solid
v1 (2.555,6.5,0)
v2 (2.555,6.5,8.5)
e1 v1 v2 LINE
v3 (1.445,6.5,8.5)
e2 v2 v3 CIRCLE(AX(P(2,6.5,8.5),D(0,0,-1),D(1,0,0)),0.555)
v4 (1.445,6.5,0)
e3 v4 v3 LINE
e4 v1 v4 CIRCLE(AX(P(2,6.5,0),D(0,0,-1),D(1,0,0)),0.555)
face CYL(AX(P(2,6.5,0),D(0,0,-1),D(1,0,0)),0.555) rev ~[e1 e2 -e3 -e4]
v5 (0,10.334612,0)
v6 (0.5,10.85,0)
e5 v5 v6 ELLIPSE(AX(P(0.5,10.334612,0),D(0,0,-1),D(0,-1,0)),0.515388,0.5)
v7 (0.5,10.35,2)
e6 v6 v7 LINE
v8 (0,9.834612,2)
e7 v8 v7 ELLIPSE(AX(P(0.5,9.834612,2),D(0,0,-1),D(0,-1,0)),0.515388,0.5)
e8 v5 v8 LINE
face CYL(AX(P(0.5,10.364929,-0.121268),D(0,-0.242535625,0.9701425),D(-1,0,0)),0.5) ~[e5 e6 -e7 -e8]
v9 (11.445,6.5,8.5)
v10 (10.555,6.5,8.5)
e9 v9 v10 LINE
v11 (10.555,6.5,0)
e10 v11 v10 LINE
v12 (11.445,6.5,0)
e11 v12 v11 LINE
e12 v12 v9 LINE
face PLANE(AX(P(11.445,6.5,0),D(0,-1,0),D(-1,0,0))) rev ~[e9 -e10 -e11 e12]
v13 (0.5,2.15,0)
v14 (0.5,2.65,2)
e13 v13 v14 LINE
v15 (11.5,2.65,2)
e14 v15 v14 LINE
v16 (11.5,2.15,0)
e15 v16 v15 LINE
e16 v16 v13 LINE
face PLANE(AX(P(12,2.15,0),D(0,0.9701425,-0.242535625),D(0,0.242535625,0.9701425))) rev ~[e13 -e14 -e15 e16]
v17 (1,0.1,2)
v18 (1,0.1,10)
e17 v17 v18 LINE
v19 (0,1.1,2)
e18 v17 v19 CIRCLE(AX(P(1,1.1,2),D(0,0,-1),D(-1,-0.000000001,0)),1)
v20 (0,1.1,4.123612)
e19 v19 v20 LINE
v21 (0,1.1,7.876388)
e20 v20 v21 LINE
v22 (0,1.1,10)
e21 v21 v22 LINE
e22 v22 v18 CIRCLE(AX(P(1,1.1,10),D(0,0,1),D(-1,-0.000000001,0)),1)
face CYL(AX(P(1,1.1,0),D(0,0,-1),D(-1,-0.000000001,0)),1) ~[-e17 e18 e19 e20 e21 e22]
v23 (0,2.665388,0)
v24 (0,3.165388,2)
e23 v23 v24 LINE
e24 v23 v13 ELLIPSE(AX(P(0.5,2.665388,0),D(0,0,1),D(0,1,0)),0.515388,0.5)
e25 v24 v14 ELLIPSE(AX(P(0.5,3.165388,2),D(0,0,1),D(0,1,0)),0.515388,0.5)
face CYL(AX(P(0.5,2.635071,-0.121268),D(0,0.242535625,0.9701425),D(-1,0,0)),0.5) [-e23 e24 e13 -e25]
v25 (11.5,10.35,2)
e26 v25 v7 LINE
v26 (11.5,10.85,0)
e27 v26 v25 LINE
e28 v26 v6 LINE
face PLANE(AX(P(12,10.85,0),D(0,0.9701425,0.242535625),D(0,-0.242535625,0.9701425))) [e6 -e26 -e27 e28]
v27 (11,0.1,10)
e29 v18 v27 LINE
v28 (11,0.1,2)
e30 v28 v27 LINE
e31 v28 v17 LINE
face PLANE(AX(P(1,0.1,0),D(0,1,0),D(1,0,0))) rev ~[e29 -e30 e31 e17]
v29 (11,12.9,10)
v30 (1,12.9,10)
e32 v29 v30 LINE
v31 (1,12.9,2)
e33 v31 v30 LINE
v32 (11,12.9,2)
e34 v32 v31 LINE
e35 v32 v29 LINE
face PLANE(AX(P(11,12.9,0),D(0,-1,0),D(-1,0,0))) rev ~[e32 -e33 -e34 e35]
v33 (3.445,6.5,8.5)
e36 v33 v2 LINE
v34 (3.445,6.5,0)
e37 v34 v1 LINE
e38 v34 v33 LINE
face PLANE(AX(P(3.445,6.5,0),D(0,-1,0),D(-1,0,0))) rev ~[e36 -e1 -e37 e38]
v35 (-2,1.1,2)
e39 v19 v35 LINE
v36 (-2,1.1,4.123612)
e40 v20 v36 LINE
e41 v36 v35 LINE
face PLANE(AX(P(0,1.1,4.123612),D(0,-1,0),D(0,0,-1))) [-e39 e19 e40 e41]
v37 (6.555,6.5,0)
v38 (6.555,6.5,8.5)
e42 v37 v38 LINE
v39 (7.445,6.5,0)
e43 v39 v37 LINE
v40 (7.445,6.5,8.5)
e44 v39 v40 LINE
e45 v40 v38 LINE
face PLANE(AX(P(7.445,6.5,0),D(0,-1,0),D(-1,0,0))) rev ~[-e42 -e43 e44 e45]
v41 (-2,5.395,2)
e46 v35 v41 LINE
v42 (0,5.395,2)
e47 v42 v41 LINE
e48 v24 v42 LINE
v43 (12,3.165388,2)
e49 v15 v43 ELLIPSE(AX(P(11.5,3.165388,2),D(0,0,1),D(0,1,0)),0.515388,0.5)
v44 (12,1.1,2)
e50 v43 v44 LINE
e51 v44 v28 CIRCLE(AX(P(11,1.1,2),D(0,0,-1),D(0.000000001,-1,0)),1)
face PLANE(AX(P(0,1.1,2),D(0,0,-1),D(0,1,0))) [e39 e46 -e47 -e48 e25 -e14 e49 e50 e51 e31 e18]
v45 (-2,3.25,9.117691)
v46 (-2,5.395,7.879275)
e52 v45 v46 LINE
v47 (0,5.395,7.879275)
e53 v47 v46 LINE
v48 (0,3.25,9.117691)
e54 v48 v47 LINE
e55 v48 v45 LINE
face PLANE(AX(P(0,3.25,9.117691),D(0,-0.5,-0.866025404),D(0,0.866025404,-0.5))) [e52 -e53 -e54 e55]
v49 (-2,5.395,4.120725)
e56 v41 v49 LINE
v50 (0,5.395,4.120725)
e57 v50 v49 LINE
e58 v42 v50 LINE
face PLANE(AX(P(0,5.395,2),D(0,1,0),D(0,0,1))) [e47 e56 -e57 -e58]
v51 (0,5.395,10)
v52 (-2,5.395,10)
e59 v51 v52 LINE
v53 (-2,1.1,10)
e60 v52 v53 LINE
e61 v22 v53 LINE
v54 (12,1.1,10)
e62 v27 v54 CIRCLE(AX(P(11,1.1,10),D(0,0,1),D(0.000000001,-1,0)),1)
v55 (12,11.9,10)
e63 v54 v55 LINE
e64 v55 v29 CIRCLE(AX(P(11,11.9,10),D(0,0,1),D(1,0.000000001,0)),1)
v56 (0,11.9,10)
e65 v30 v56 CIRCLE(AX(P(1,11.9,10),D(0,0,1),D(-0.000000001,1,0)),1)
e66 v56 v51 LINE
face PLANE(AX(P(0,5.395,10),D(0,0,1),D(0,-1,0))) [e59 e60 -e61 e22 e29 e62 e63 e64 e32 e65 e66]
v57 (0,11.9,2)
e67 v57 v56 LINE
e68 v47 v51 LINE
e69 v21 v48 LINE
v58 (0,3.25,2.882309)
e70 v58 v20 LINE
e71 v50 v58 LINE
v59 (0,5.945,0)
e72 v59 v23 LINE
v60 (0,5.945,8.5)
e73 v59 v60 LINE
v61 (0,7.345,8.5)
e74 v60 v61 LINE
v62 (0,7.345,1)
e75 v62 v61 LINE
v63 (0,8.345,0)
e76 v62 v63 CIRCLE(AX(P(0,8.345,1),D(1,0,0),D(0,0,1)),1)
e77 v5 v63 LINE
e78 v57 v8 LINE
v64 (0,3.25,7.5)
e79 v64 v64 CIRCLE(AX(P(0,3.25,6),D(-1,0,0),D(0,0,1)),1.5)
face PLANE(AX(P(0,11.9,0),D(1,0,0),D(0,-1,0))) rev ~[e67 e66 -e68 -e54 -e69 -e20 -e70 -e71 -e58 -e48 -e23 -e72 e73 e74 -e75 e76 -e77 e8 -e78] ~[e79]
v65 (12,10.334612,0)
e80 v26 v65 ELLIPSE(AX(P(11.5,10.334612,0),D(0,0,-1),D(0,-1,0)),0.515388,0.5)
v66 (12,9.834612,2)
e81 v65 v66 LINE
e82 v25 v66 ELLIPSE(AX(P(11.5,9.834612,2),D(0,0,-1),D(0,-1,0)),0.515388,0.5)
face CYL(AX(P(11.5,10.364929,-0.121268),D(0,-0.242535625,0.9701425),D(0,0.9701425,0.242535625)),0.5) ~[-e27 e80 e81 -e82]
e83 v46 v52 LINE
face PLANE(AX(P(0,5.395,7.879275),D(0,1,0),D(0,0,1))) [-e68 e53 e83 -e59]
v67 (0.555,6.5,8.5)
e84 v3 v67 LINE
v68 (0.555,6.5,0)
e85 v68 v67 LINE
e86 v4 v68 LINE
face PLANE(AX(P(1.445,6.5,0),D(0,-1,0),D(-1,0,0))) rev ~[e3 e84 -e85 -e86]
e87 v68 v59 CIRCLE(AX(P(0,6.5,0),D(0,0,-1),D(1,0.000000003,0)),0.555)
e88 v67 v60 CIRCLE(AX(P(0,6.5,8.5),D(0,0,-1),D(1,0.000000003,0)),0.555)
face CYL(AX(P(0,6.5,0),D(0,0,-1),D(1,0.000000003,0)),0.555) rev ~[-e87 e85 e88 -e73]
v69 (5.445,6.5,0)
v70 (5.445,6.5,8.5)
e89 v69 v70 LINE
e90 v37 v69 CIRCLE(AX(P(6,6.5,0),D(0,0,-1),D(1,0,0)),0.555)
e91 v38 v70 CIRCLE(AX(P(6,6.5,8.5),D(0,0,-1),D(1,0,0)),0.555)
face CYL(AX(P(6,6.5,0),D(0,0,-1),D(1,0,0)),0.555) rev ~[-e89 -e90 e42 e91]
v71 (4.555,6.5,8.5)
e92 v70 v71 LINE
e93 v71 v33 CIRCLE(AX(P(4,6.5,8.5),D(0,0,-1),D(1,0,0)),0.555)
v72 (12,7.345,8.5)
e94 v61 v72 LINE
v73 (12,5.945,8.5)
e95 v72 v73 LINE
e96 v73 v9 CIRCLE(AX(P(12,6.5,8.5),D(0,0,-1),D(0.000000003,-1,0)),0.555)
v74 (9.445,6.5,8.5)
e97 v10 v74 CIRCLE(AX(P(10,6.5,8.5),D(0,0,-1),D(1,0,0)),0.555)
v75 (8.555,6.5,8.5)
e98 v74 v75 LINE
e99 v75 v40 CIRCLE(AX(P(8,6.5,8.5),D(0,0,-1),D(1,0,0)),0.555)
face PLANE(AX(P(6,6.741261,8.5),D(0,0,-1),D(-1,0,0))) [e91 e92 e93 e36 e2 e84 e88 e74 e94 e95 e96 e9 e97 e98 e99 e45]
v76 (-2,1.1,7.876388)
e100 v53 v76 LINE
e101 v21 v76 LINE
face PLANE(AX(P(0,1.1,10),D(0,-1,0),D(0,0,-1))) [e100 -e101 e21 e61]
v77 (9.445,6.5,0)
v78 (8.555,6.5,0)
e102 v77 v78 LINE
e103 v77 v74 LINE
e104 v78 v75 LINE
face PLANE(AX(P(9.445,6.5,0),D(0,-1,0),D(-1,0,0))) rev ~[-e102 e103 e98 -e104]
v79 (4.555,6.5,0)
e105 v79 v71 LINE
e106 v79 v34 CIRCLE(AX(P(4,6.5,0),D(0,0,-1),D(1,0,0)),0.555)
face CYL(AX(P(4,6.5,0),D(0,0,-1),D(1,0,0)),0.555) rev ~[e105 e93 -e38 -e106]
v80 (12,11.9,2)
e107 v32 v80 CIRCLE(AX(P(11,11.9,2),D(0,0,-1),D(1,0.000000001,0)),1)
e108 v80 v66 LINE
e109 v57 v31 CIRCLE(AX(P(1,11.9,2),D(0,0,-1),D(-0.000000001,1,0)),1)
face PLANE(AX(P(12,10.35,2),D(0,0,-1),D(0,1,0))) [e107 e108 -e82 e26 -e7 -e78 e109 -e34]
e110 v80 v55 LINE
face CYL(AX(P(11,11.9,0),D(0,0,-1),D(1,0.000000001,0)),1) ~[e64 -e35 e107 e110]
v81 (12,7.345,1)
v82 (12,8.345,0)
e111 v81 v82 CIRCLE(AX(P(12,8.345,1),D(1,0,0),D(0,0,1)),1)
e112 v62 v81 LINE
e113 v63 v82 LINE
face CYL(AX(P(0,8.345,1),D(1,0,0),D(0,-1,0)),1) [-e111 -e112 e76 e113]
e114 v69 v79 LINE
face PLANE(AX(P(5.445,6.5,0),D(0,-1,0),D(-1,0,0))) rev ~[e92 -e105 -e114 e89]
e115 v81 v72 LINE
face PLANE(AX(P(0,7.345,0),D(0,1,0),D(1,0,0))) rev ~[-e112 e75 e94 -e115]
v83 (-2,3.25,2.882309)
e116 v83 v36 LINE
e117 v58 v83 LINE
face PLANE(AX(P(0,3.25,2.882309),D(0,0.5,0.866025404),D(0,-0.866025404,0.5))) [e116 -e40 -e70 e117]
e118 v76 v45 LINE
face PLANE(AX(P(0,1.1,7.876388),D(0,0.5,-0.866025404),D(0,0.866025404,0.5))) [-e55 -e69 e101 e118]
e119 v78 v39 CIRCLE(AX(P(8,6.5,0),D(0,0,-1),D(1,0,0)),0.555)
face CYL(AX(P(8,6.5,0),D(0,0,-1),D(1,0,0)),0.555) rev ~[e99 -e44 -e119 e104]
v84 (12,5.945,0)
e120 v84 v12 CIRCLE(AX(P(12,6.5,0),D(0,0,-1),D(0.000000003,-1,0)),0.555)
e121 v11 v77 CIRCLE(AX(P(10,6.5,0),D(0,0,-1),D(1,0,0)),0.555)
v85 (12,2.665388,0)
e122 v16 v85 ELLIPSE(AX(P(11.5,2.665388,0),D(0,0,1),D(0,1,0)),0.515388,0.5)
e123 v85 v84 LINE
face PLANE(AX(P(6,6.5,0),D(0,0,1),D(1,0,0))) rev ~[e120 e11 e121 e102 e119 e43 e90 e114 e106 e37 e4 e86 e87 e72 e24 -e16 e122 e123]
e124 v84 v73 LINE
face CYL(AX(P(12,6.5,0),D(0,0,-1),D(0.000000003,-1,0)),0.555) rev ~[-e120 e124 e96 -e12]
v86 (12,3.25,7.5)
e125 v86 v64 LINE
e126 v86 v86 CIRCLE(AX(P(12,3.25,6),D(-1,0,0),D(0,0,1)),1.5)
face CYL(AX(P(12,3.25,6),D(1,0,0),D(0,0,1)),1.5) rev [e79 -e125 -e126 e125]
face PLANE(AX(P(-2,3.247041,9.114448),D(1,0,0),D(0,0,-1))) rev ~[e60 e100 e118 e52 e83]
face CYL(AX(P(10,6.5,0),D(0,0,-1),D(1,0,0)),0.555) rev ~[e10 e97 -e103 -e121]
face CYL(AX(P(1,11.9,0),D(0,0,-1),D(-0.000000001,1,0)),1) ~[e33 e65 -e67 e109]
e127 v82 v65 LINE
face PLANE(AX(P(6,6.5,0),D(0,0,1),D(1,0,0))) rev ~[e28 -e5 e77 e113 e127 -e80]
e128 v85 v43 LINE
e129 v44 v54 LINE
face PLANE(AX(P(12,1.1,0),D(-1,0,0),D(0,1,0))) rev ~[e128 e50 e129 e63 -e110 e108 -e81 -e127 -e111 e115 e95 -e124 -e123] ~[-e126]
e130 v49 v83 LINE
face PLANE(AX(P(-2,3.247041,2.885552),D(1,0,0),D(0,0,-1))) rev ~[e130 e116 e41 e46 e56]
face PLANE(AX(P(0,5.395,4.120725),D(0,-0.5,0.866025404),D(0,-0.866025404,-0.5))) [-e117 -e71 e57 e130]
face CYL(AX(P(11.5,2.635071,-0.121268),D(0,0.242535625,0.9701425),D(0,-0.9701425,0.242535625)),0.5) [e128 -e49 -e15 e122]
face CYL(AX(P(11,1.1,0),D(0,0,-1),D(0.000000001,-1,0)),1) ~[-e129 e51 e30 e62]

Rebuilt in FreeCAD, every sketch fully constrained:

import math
import FreeCAD as App
import Part
import Sketcher
from FreeCAD import Vector
Q = App.Units.Quantity


def edges_at(feature, points):
    """Names of the edges that pass closest to the given points."""
    edges = feature.Shape.Edges
    near = lambda p: min(range(len(edges)), key=lambda i: edges[i].distToShape(Part.Vertex(*p))[0])
    return sorted({f"Edge{near(p) + 1}" for p in points})

doc = App.newDocument("Part")
body = doc.addObject("PartDesign::Body", "Body")

# Sketch on XY plane
sketch1 = body.newObject("Sketcher::SketchObject", "Sketch")
sketch1.AttachmentSupport = (doc.getObject("XY_Plane"), [""])
sketch1.MapMode = "FlatFace"
sketch1.addGeometry([
    Part.LineSegment(Vector(1, 0.1, 0), Vector(11, 0.1, 0)),  # 0
    Part.ArcOfCircle(Part.Circle(Vector(11, 1.1, 0), Vector(0, 0, 1), 1), math.radians(-90), math.radians(0)),  # 1
    Part.LineSegment(Vector(12, 1.1, 0), Vector(12, 11.9, 0)),  # 2
    Part.ArcOfCircle(Part.Circle(Vector(11, 11.9, 0), Vector(0, 0, 1), 1), math.radians(0), math.radians(90)),  # 3
    Part.LineSegment(Vector(11, 12.9, 0), Vector(1, 12.9, 0)),  # 4
    Part.ArcOfCircle(Part.Circle(Vector(1, 11.9, 0), Vector(0, 0, 1), 1), math.radians(90), math.radians(180)),  # 5
    Part.LineSegment(Vector(0, 11.9, 0), Vector(0, 1.1, 0)),  # 6
    Part.ArcOfCircle(Part.Circle(Vector(1, 1.1, 0), Vector(0, 0, 1), 1), math.radians(-180), math.radians(-90)),  # 7
], False)
sketch1.addConstraint([
    Sketcher.Constraint("Tangent", 0, 2, 1, 1),
    Sketcher.Constraint("Tangent", 1, 2, 2, 1),
    Sketcher.Constraint("Tangent", 2, 2, 3, 1),
    Sketcher.Constraint("Tangent", 3, 2, 4, 1),
    Sketcher.Constraint("Tangent", 4, 2, 5, 1),
    Sketcher.Constraint("Tangent", 5, 2, 6, 1),
    Sketcher.Constraint("Tangent", 6, 2, 7, 1),
    Sketcher.Constraint("Tangent", 7, 2, 0, 1),
    Sketcher.Constraint("Horizontal", 0),
    Sketcher.Constraint("Vertical", 2),
    Sketcher.Constraint("Horizontal", 4),
    Sketcher.Constraint("Vertical", 6),
    Sketcher.Constraint("Equal", 1, 3),
    Sketcher.Constraint("Equal", 3, 5),
    Sketcher.Constraint("Equal", 5, 7),
    Sketcher.Constraint("PointOnObject", 5, 2, -2),
    Sketcher.Constraint("Radius", 1, Q("1 mm")),
    Sketcher.Constraint("DistanceX", 0, 1, 0, 2, Q("10 mm")),
    Sketcher.Constraint("DistanceY", 2, 1, 2, 2, Q("10.8 mm")),
    Sketcher.Constraint("DistanceY", -1, 1, 1, 3, Q("1.1 mm")),
])
pad1 = body.newObject("PartDesign::Pad", "Pad")
pad1.Profile = sketch1
pad1.Length = 10

# Sketch on XY plane
sketch2 = body.newObject("Sketcher::SketchObject", "Sketch001")
sketch2.AttachmentSupport = (doc.getObject("XY_Plane"), [""])
sketch2.MapMode = "FlatFace"
sketch2.addGeometry([
    Part.LineSegment(Vector(10.6, 6.5, 0), Vector(11.4, 6.5, 0)),  # 0
    Part.ArcOfCircle(Part.Circle(Vector(12, 6.5, 0), Vector(0, 0, 1), 0.6), math.radians(180), math.radians(270)),  # 1
    Part.LineSegment(Vector(12, 5.9, 0), Vector(12, 7.3, 0)),  # 2
    Part.LineSegment(Vector(12, 7.3, 0), Vector(0, 7.3, 0)),  # 3
    Part.LineSegment(Vector(0, 7.3, 0), Vector(0, 5.9, 0)),  # 4
    Part.ArcOfCircle(Part.Circle(Vector(0, 6.5, 0), Vector(0, 0, 1), 0.6), math.radians(-90), math.radians(0)),  # 5
    Part.LineSegment(Vector(0.6, 6.5, 0), Vector(1.4, 6.5, 0)),  # 6
    Part.ArcOfCircle(Part.Circle(Vector(2, 6.5, 0), Vector(0, 0, 1), 0.6), math.radians(180), math.radians(360)),  # 7
    Part.LineSegment(Vector(2.6, 6.5, 0), Vector(3.4, 6.5, 0)),  # 8
    Part.ArcOfCircle(Part.Circle(Vector(4, 6.5, 0), Vector(0, 0, 1), 0.6), math.radians(180), math.radians(360)),  # 9
    Part.LineSegment(Vector(4.6, 6.5, 0), Vector(5.4, 6.5, 0)),  # 10
    Part.ArcOfCircle(Part.Circle(Vector(6, 6.5, 0), Vector(0, 0, 1), 0.6), math.radians(180), math.radians(360)),  # 11
    Part.LineSegment(Vector(6.6, 6.5, 0), Vector(7.4, 6.5, 0)),  # 12
    Part.ArcOfCircle(Part.Circle(Vector(8, 6.5, 0), Vector(0, 0, 1), 0.6), math.radians(180), math.radians(360)),  # 13
    Part.LineSegment(Vector(8.6, 6.5, 0), Vector(9.4, 6.5, 0)),  # 14
    Part.ArcOfCircle(Part.Circle(Vector(10, 6.5, 0), Vector(0, 0, 1), 0.6), math.radians(180), math.radians(360)),  # 15
], False)
sketch2.addConstraint([
    Sketcher.Constraint("Coincident", 0, 2, 1, 1),
    Sketcher.Constraint("Coincident", 1, 2, 2, 1),
    Sketcher.Constraint("Coincident", 2, 2, 3, 1),
    Sketcher.Constraint("Coincident", 3, 2, 4, 1),
    Sketcher.Constraint("Coincident", 4, 2, 5, 1),
    Sketcher.Constraint("Coincident", 5, 2, 6, 1),
    Sketcher.Constraint("Coincident", 6, 2, 7, 1),
    Sketcher.Constraint("Coincident", 7, 2, 8, 1),
    Sketcher.Constraint("Coincident", 8, 2, 9, 1),
    Sketcher.Constraint("Coincident", 9, 2, 10, 1),
    Sketcher.Constraint("Coincident", 10, 2, 11, 1),
    Sketcher.Constraint("Coincident", 11, 2, 12, 1),
    Sketcher.Constraint("Coincident", 12, 2, 13, 1),
    Sketcher.Constraint("Coincident", 13, 2, 14, 1),
    Sketcher.Constraint("Coincident", 14, 2, 15, 1),
    Sketcher.Constraint("Coincident", 15, 2, 0, 1),
    Sketcher.Constraint("Horizontal", 0),
    Sketcher.Constraint("Vertical", 2),
    Sketcher.Constraint("Horizontal", 3),
    Sketcher.Constraint("Vertical", 4),
    Sketcher.Constraint("Horizontal", 6),
    Sketcher.Constraint("Horizontal", 8),
    Sketcher.Constraint("Horizontal", 10),
    Sketcher.Constraint("Horizontal", 12),
    Sketcher.Constraint("Horizontal", 14),
    Sketcher.Constraint("Equal", 1, 5),
    Sketcher.Constraint("Equal", 5, 7),
    Sketcher.Constraint("Equal", 7, 9),
    Sketcher.Constraint("Equal", 9, 11),
    Sketcher.Constraint("Equal", 11, 13),
    Sketcher.Constraint("Equal", 13, 15),
    Sketcher.Constraint("PointOnObject", 5, 3, -2),
    Sketcher.Constraint("PointOnObject", 3, 2, -2),
    Sketcher.Constraint("Horizontal", 1, 3, 5, 3),
    Sketcher.Constraint("Horizontal", 5, 3, 7, 3),
    Sketcher.Constraint("Horizontal", 7, 3, 9, 3),
    Sketcher.Constraint("Horizontal", 9, 3, 11, 3),
    Sketcher.Constraint("Horizontal", 11, 3, 13, 3),
    Sketcher.Constraint("Horizontal", 13, 3, 15, 3),
    Sketcher.Constraint("Horizontal", 15, 3, 0, 2),
    Sketcher.Constraint("Horizontal", 0, 2, 5, 2),
    Sketcher.Constraint("Horizontal", 6, 2, 7, 2),
    Sketcher.Constraint("Horizontal", 8, 2, 9, 2),
    Sketcher.Constraint("Horizontal", 10, 2, 11, 2),
    Sketcher.Constraint("Horizontal", 12, 2, 13, 2),
    Sketcher.Constraint("Equal", 0, 6),
    Sketcher.Constraint("Equal", 6, 8),
    Sketcher.Constraint("Equal", 8, 10),
    Sketcher.Constraint("Equal", 10, 12),
    Sketcher.Constraint("Equal", 12, 14),
    Sketcher.Constraint("DistanceX", 3, 2, 3, 1, Q("12 mm")),
    Sketcher.Constraint("DistanceY", 2, 1, 2, 2, Q("1.4 mm")),
    Sketcher.Constraint("DistanceX", -1, 1, 1, 3, Q("12 mm")),
    Sketcher.Constraint("Radius", 1, Q("0.555 mm")),
    Sketcher.Constraint("DistanceY", -1, 1, 1, 3, Q("6.5 mm")),
])
pocket1 = body.newObject("PartDesign::Pocket", "Pocket")
pocket1.Profile = sketch2
pocket1.Length = 8.5
pocket1.Reversed = True

# Sketch on YZ plane
sketch3 = body.newObject("Sketcher::SketchObject", "Sketch002")
sketch3.AttachmentSupport = (doc.getObject("YZ_Plane"), [""])
sketch3.MapMode = "FlatFace"
sketch3.AttachmentOffset = App.Placement(Vector(0, 0, 12), App.Rotation())
sketch3.addGeometry([
    Part.Circle(Vector(3.2, 6, 0), Vector(0, 0, 1), 1.5),  # 0
    Part.LineSegment(Vector(0.1, 2, 0), Vector(2.6, 2, 0)),  # 1
    Part.LineSegment(Vector(2.6, 2, 0), Vector(2.1, 0, 0)),  # 2
    Part.LineSegment(Vector(2.1, 0, 0), Vector(0.1, 0, 0)),  # 3
    Part.LineSegment(Vector(0.1, 0, 0), Vector(0.1, 2, 0)),  # 4
    Part.LineSegment(Vector(12.9, 0, 0), Vector(10.8, 0, 0)),  # 5
    Part.LineSegment(Vector(10.8, 0, 0), Vector(10.3, 2, 0)),  # 6
    Part.LineSegment(Vector(10.3, 2, 0), Vector(12.9, 2, 0)),  # 7
    Part.LineSegment(Vector(12.9, 2, 0), Vector(12.9, 0, 0)),  # 8
], False)
sketch3.addConstraint([
    Sketcher.Constraint("Coincident", 1, 2, 2, 1),
    Sketcher.Constraint("Coincident", 2, 2, 3, 1),
    Sketcher.Constraint("Coincident", 3, 2, 4, 1),
    Sketcher.Constraint("Coincident", 4, 2, 1, 1),
    Sketcher.Constraint("Coincident", 5, 2, 6, 1),
    Sketcher.Constraint("Coincident", 6, 2, 7, 1),
    Sketcher.Constraint("Coincident", 7, 2, 8, 1),
    Sketcher.Constraint("Coincident", 8, 2, 5, 1),
    Sketcher.Constraint("Horizontal", 1),
    Sketcher.Constraint("Horizontal", 3),
    Sketcher.Constraint("Vertical", 4),
    Sketcher.Constraint("Horizontal", 5),
    Sketcher.Constraint("Horizontal", 7),
    Sketcher.Constraint("Vertical", 8),
    Sketcher.Constraint("PointOnObject", 2, 2, -1),
    Sketcher.Constraint("PointOnObject", 5, 2, -1),
    Sketcher.Constraint("Horizontal", 4, 2, 6, 2),
    Sketcher.Constraint("Equal", 3, 5),
    Sketcher.Constraint("Equal", 1, 7),
    Sketcher.Constraint("Diameter", 0, Q("3 mm")),
    Sketcher.Constraint("DistanceY", 4, 1, 4, 2, Q("2 mm")),
    Sketcher.Constraint("DistanceY", -1, 1, 0, 3, Q("6 mm")),
    Sketcher.Constraint("DistanceX", 1, 1, 1, 2, Q("2.55 mm")),
    Sketcher.Constraint("DistanceX", 3, 2, 3, 1, Q("2.05 mm")),
    Sketcher.Constraint("DistanceX", -1, 1, 3, 2, Q("0.1 mm")),
    Sketcher.Constraint("DistanceX", -1, 1, 7, 2, Q("12.9 mm")),
    Sketcher.Constraint("DistanceX", 1, 2, 0, 3, Q("0.6 mm")),
])
pocket2 = body.newObject("PartDesign::Pocket", "Pocket001")
pocket2.Profile = sketch3
pocket2.Length = 12

# Sketch on YZ plane
sketch4 = body.newObject("Sketcher::SketchObject", "Sketch003")
sketch4.AttachmentSupport = (doc.getObject("YZ_Plane"), [""])
sketch4.MapMode = "FlatFace"
sketch4.addGeometry([
    Part.LineSegment(Vector(3.2, 9.1, 0), Vector(1.1, 7.9, 0)),  # 0
    Part.LineSegment(Vector(1.1, 7.9, 0), Vector(1.1, 10, 0)),  # 1
    Part.LineSegment(Vector(1.1, 10, 0), Vector(5.4, 10, 0)),  # 2
    Part.LineSegment(Vector(5.4, 10, 0), Vector(5.4, 7.9, 0)),  # 3
    Part.LineSegment(Vector(5.4, 7.9, 0), Vector(3.2, 9.1, 0)),  # 4
    Part.LineSegment(Vector(5.4, 2, 0), Vector(1.1, 2, 0)),  # 5
    Part.LineSegment(Vector(1.1, 2, 0), Vector(1.1, 4.1, 0)),  # 6
    Part.LineSegment(Vector(1.1, 4.1, 0), Vector(3.2, 2.9, 0)),  # 7
    Part.LineSegment(Vector(3.2, 2.9, 0), Vector(5.4, 4.1, 0)),  # 8
    Part.LineSegment(Vector(5.4, 4.1, 0), Vector(5.4, 2, 0)),  # 9
], False)
sketch4.addConstraint([
    Sketcher.Constraint("Coincident", 0, 2, 1, 1),
    Sketcher.Constraint("Coincident", 1, 2, 2, 1),
    Sketcher.Constraint("Coincident", 2, 2, 3, 1),
    Sketcher.Constraint("Coincident", 3, 2, 4, 1),
    Sketcher.Constraint("Coincident", 4, 2, 0, 1),
    Sketcher.Constraint("Coincident", 5, 2, 6, 1),
    Sketcher.Constraint("Coincident", 6, 2, 7, 1),
    Sketcher.Constraint("Coincident", 7, 2, 8, 1),
    Sketcher.Constraint("Coincident", 8, 2, 9, 1),
    Sketcher.Constraint("Coincident", 9, 2, 5, 1),
    Sketcher.Constraint("Vertical", 1),
    Sketcher.Constraint("Horizontal", 2),
    Sketcher.Constraint("Vertical", 3),
    Sketcher.Constraint("Horizontal", 5),
    Sketcher.Constraint("Vertical", 6),
    Sketcher.Constraint("Vertical", 9),
    Sketcher.Constraint("Parallel", 4, 7),
    Sketcher.Constraint("Parallel", 0, 8),
    Sketcher.Constraint("Vertical", 1, 2, 5, 2),
    Sketcher.Constraint("Vertical", 4, 2, 7, 2),
    Sketcher.Constraint("Vertical", 3, 2, 8, 2),
    Sketcher.Constraint("Equal", 1, 6),
    Sketcher.Constraint("Equal", 3, 9),
    Sketcher.Constraint("Angle", 0, Q("-150 deg")),
    Sketcher.Constraint("DistanceY", -1, 1, 1, 2, Q("10 mm")),
    Sketcher.Constraint("DistanceY", -1, 1, 5, 2, Q("2 mm")),
    Sketcher.Constraint("DistanceX", -1, 1, 0, 2, Q("1.1 mm")),
    Sketcher.Constraint("DistanceX", 2, 1, 2, 2, Q("4.295 mm")),
    Sketcher.Constraint("DistanceX", -1, 1, 4, 2, Q("3.25 mm")),
    Sketcher.Constraint("DistanceY", 1, 1, 1, 2, Q("2.123612 mm")),
])
pad2 = body.newObject("PartDesign::Pad", "Pad001")
pad2.Profile = sketch4
pad2.Length = 2
pad2.Reversed = True
doc.recompute()

fillet = body.newObject("PartDesign::Fillet", "Fillet")
fillet.Base = (pad2, edges_at(pad2, [
    (12, 2.4, 1),
    (12, 10.6, 1),
    (0, 10.6, 1),
    (0, 2.4, 1),
]))
fillet.Radius = 0.5
doc.recompute()

fillet2 = body.newObject("PartDesign::Fillet", "Fillet001")
fillet2.Base = (fillet, edges_at(fillet, [(6, 7.345, 0)]))
fillet2.Radius = 1

doc.recompute()
